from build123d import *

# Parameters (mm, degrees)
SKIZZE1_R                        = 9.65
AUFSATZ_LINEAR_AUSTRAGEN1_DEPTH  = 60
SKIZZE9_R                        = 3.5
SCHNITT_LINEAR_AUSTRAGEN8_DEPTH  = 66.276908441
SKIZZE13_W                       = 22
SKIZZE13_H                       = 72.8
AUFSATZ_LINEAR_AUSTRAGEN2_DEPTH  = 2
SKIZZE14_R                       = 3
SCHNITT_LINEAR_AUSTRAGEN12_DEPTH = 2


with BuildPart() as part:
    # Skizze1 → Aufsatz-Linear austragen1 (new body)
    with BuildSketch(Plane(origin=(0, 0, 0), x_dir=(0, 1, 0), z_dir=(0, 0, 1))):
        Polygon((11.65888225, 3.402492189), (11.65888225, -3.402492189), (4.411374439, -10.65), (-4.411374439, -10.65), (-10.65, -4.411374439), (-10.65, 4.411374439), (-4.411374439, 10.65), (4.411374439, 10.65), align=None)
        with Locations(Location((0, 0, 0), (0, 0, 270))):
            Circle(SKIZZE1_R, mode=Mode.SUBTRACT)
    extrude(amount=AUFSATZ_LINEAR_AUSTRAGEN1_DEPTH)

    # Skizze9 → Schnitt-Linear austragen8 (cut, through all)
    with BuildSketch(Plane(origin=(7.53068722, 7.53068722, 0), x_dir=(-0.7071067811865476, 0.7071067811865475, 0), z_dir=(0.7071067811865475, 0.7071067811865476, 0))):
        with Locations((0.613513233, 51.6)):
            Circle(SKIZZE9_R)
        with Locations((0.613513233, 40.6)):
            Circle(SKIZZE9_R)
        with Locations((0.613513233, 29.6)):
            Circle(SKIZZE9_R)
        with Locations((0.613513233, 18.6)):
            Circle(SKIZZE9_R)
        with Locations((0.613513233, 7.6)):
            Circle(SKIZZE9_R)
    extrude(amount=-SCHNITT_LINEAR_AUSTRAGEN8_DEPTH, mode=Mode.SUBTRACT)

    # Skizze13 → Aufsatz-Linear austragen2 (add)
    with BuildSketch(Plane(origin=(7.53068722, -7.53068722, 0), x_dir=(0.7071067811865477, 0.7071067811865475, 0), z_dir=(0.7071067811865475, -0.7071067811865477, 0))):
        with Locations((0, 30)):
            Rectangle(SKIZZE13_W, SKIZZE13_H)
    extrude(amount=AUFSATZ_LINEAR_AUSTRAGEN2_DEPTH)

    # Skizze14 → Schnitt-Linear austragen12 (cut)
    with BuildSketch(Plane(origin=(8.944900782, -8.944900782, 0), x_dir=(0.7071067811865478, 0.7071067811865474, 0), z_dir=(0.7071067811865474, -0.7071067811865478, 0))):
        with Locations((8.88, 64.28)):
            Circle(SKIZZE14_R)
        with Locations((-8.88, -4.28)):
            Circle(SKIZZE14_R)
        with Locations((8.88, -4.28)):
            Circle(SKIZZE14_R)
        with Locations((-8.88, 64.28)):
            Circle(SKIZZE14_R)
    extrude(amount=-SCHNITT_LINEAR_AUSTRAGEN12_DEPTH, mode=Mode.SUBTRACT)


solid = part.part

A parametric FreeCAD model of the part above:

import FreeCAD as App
import Part
import Sketcher

V = App.Vector
Q = App.Units.Quantity


def add_polygon(sketch, points):
    """Adds a closed chain of lines whose ends are joined by coincident constraints."""
    first, n = sketch.GeometryCount, len(points)
    for a, b in zip(points, points[1:] + points[:1]):
        sketch.addGeometry(Part.LineSegment(App.Vector(*a, 0), App.Vector(*b, 0)), False)
    for i in range(n):
        sketch.addConstraint(Sketcher.Constraint("Coincident", first + i, 2, first + (i + 1) % n, 1))

doc = App.newDocument("Part")
body = doc.addObject("PartDesign::Body", "Body")

# Sketch on XY plane
sketch1 = doc.addObject("Sketcher::SketchObject", "Sketch")
body.addObject(sketch1)
sketch1.AttachmentSupport = (doc.XY_Plane, [""])
sketch1.MapMode = "FlatFace"
add_polygon(sketch1, [(3, 12), (-3, 12), (-11, 4), (-11, -4), (-4, -11), (4, -11), (11, -4), (11, 4)])  # lines 0-7
sketch1.addGeometry(Part.Circle(V(0, 0, 0), V(0, 0, 1), 10), False)  # 8
sketch1.addConstraint([
    Sketcher.Constraint("Horizontal", 0),
    Sketcher.Constraint("Vertical", 2),
    Sketcher.Constraint("Horizontal", 4),
    Sketcher.Constraint("Vertical", 6),
    Sketcher.Constraint("Coincident", 8, 3, -1, 1),
    Sketcher.Constraint("Symmetric", 1, 2, 5, 2, -1, 1),
    Sketcher.Constraint("Perpendicular", 1, 3),
    Sketcher.Constraint("Perpendicular", 3, 5),
    Sketcher.Constraint("Perpendicular", 5, 7),
    Sketcher.Constraint("Horizontal", 2, 2, 5, 2),
    Sketcher.Constraint("Horizontal", 1, 2, 6, 2),
    Sketcher.Constraint("Equal", 4, 2),
    Sketcher.Constraint("Equal", 3, 5),
    Sketcher.Constraint("Diameter", 8, Q("19.3 mm")),
    Sketcher.Constraint("DistanceX", 2, 2, 5, 2, Q("21.3 mm")),
    Sketcher.Constraint("DistanceX", 4, 1, 4, 2, Q("8.822749 mm")),
    Sketcher.Constraint("DistanceX", 0, 2, 0, 1, Q("6.804984 mm")),
])
pad1 = doc.addObject("PartDesign::Pad", "Pad")
body.addObject(pad1)
pad1.Profile = sketch1
pad1.Length = 60

# Sketch on an angled plane
sketch2 = doc.addObject("Sketcher::SketchObject", "Sketch001")
body.addObject(sketch2)
sketch2.Placement = App.Placement(V(7.530687, 7.530687, 0), App.Rotation(V(-0.707106781, 0.707106781, 0), V(0, 0, 0.999999999), V(0.707106781, 0.707106781, 0), "ZXY"))
sketch2.addGeometry([
    Part.Circle(V(0.6, 51.6, 0), V(0, 0, 1), 3.5),  # 0
    Part.Circle(V(0.6, 40.6, 0), V(0, 0, 1), 3.5),  # 1
    Part.Circle(V(0.6, 29.6, 0), V(0, 0, 1), 3.5),  # 2
    Part.Circle(V(0.6, 18.6, 0), V(0, 0, 1), 3.5),  # 3
    Part.Circle(V(0.6, 7.6, 0), V(0, 0, 1), 3.5),  # 4
], False)
sketch2.addConstraint([
    Sketcher.Constraint("Equal", 0, 1),
    Sketcher.Constraint("Equal", 1, 2),
    Sketcher.Constraint("Equal", 2, 3),
    Sketcher.Constraint("Equal", 3, 4),
    Sketcher.Constraint("Vertical", 0, 3, 1, 3),
    Sketcher.Constraint("Vertical", 1, 3, 2, 3),
    Sketcher.Constraint("Vertical", 2, 3, 3, 3),
    Sketcher.Constraint("Vertical", 3, 3, 4, 3),
    Sketcher.Constraint("Diameter", 0, Q("7 mm")),
    Sketcher.Constraint("DistanceY", 1, 3, 0, 3, Q("11 mm")),
    Sketcher.Constraint("DistanceY", 2, 3, 1, 3, Q("11 mm")),
    Sketcher.Constraint("DistanceY", 3, 3, 2, 3, Q("11 mm")),
    Sketcher.Constraint("DistanceY", 4, 3, 3, 3, Q("11 mm")),
    Sketcher.Constraint("DistanceY", -1, 1, 0, 3, Q("51.6 mm")),
    Sketcher.Constraint("DistanceX", -1, 1, 0, 3, Q("0.613513 mm")),
])
pocket1 = doc.addObject("PartDesign::Pocket", "Pocket")
body.addObject(pocket1)
pocket1.Profile = sketch2
pocket1.Type = "ThroughAll"

# Sketch on an angled plane
sketch3 = doc.addObject("Sketcher::SketchObject", "Sketch002")
body.addObject(sketch3)
sketch3.Placement = App.Placement(V(7.530687, -7.530687, 0), App.Rotation(V(0.707106781, 0.707106781, 0), V(0, 0, 0.999999999), V(0.707106781, -0.707106781, 0), "ZXY"))
add_polygon(sketch3, [(-11, 66), (-11, -6), (11, -6), (11, 66)])  # lines 0-3
sketch3.addConstraint([
    Sketcher.Constraint("Vertical", 0),
    Sketcher.Constraint("Horizontal", 1),
    Sketcher.Constraint("Vertical", 2),
    Sketcher.Constraint("Horizontal", 3),
    Sketcher.Constraint("DistanceX", 1, 1, 1, 2, Q("22 mm")),
    Sketcher.Constraint("DistanceY", 0, 2, 0, 1, Q("72.8 mm")),
    Sketcher.Constraint("DistanceX", 0, 2, -1, 1, Q("11 mm")),
    Sketcher.Constraint("DistanceY", 0, 2, -1, 1, Q("6.4 mm")),
])
pad2 = doc.addObject("PartDesign::Pad", "Pad001")
body.addObject(pad2)
pad2.Profile = sketch3
pad2.Length = 2

# Sketch on an angled plane
sketch4 = doc.addObject("Sketcher::SketchObject", "Sketch003")
body.addObject(sketch4)
sketch4.Placement = App.Placement(V(8.944901, -8.944901, 0), App.Rotation(V(0.707106781, 0.707106781, 0), V(0, 0, 0.999999999), V(0.707106781, -0.707106781, 0), "ZXY"))
sketch4.addGeometry([
    Part.Circle(V(8.9, 64.3, 0), V(0, 0, 1), 3),
    Part.Circle(V(-8.9, -4.3, 0), V(0, 0, 1), 3),
    Part.Circle(V(8.9, -4.3, 0), V(0, 0, 1), 3),
    Part.Circle(V(-8.9, 64.3, 0), V(0, 0, 1), 3),
], False)
sketch4.addConstraint([
    Sketcher.Constraint("Equal", 0, 1),
    Sketcher.Constraint("Equal", 1, 2),
    Sketcher.Constraint("Equal", 2, 3),
    Sketcher.Constraint("Symmetric", 1, 3, 2, 3, -2),
    Sketcher.Constraint("Symmetric", 0, 3, 3, 3, -2),
    Sketcher.Constraint("Vertical", 0, 3, 2, 3),
    Sketcher.Constraint("Diameter", 0, Q("6 mm")),
    Sketcher.Constraint("DistanceX", -1, 1, 0, 3, Q("8.88 mm")),
    Sketcher.Constraint("DistanceY", -1, 1, 0, 3, Q("64.28 mm")),
    Sketcher.Constraint("DistanceY", 1, 3, -1, 1, Q("4.28 mm")),
])
pocket2 = doc.addObject("PartDesign::Pocket", "Pocket001")
body.addObject(pocket2)
pocket2.Profile = sketch4
pocket2.Length = 2

doc.recompute()
